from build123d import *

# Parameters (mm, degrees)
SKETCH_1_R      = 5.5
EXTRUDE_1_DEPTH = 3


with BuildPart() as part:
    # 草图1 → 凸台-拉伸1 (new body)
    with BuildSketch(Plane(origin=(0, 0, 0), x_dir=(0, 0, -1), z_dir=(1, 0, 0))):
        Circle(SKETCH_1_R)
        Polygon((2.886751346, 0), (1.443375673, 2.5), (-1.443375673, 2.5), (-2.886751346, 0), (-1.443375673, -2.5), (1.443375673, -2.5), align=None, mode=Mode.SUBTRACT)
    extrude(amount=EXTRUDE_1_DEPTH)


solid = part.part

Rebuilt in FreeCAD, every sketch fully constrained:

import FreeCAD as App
import Part
import Sketcher
Q = App.Units.Quantity

doc = App.newDocument("Part")
body = doc.addObject("PartDesign::Body", "Body")

# Sketch on YZ plane
sketch1 = body.newObject("Sketcher::SketchObject", "Sketch")
sketch1.AttachmentSupport = (doc.getObject("YZ_Plane"), [""])
sketch1.MapMode = "FlatFace"
sketch1.addGeometry(Part.Circle(App.Vector(0, 0, 0), App.Vector(0, 0, 1), 5.5), False)
sketch1.addGeometry(Part.LineSegment(App.Vector(2.5, -1.4, 0), App.Vector(0, -2.9, 0)), False)
sketch1.addGeometry(Part.LineSegment(App.Vector(0, -2.9, 0), App.Vector(-2.5, -1.4, 0)), False)
sketch1.addGeometry(Part.LineSegment(App.Vector(-2.5, -1.4, 0), App.Vector(-2.5, 1.4, 0)), False)
sketch1.addGeometry(Part.LineSegment(App.Vector(-2.5, 1.4, 0), App.Vector(0, 2.9, 0)), False)
sketch1.addGeometry(Part.LineSegment(App.Vector(0, 2.9, 0), App.Vector(2.5, 1.4, 0)), False)
sketch1.addGeometry(Part.LineSegment(App.Vector(2.5, 1.4, 0), App.Vector(2.5, -1.4, 0)), False)
sketch1.addConstraint(Sketcher.Constraint("Coincident", 1, 2, 2, 1))
sketch1.addConstraint(Sketcher.Constraint("Coincident", 2, 2, 3, 1))
sketch1.addConstraint(Sketcher.Constraint("Coincident", 3, 2, 4, 1))
sketch1.addConstraint(Sketcher.Constraint("Coincident", 4, 2, 5, 1))
sketch1.addConstraint(Sketcher.Constraint("Coincident", 5, 2, 6, 1))
sketch1.addConstraint(Sketcher.Constraint("Coincident", 6, 2, 1, 1))
sketch1.addConstraint(Sketcher.Constraint("Vertical", 3))
sketch1.addConstraint(Sketcher.Constraint("Vertical", 6))
sketch1.addConstraint(Sketcher.Constraint("Coincident", 0, 3, -1, 1))
sketch1.addConstraint(Sketcher.Constraint("Symmetric", 1, 2, 4, 2, -1, 1))
sketch1.addConstraint(Sketcher.Constraint("Symmetric", 2, 2, 5, 2, -1, 1))
sketch1.addConstraint(Sketcher.Constraint("PointOnObject", 1, 2, -2))
sketch1.addConstraint(Sketcher.Constraint("Parallel", 1, 4))
sketch1.addConstraint(Sketcher.Constraint("Horizontal", 3, 2, 5, 2))
sketch1.addConstraint(Sketcher.Constraint("Diameter", 0, Q("11 mm")))
sketch1.addConstraint(Sketcher.Constraint("Angle", 1, Q("-150 deg")))
sketch1.addConstraint(Sketcher.Constraint("DistanceX", 3, 2, 5, 2, Q("5 mm")))
sketch1.addConstraint(Sketcher.Constraint("DistanceY", 3, 1, 3, 2, Q("2.886751 mm")))
pad1 = body.newObject("PartDesign::Pad", "Pad")
pad1.Profile = sketch1
pad1.Length = 3

doc.recompute()
